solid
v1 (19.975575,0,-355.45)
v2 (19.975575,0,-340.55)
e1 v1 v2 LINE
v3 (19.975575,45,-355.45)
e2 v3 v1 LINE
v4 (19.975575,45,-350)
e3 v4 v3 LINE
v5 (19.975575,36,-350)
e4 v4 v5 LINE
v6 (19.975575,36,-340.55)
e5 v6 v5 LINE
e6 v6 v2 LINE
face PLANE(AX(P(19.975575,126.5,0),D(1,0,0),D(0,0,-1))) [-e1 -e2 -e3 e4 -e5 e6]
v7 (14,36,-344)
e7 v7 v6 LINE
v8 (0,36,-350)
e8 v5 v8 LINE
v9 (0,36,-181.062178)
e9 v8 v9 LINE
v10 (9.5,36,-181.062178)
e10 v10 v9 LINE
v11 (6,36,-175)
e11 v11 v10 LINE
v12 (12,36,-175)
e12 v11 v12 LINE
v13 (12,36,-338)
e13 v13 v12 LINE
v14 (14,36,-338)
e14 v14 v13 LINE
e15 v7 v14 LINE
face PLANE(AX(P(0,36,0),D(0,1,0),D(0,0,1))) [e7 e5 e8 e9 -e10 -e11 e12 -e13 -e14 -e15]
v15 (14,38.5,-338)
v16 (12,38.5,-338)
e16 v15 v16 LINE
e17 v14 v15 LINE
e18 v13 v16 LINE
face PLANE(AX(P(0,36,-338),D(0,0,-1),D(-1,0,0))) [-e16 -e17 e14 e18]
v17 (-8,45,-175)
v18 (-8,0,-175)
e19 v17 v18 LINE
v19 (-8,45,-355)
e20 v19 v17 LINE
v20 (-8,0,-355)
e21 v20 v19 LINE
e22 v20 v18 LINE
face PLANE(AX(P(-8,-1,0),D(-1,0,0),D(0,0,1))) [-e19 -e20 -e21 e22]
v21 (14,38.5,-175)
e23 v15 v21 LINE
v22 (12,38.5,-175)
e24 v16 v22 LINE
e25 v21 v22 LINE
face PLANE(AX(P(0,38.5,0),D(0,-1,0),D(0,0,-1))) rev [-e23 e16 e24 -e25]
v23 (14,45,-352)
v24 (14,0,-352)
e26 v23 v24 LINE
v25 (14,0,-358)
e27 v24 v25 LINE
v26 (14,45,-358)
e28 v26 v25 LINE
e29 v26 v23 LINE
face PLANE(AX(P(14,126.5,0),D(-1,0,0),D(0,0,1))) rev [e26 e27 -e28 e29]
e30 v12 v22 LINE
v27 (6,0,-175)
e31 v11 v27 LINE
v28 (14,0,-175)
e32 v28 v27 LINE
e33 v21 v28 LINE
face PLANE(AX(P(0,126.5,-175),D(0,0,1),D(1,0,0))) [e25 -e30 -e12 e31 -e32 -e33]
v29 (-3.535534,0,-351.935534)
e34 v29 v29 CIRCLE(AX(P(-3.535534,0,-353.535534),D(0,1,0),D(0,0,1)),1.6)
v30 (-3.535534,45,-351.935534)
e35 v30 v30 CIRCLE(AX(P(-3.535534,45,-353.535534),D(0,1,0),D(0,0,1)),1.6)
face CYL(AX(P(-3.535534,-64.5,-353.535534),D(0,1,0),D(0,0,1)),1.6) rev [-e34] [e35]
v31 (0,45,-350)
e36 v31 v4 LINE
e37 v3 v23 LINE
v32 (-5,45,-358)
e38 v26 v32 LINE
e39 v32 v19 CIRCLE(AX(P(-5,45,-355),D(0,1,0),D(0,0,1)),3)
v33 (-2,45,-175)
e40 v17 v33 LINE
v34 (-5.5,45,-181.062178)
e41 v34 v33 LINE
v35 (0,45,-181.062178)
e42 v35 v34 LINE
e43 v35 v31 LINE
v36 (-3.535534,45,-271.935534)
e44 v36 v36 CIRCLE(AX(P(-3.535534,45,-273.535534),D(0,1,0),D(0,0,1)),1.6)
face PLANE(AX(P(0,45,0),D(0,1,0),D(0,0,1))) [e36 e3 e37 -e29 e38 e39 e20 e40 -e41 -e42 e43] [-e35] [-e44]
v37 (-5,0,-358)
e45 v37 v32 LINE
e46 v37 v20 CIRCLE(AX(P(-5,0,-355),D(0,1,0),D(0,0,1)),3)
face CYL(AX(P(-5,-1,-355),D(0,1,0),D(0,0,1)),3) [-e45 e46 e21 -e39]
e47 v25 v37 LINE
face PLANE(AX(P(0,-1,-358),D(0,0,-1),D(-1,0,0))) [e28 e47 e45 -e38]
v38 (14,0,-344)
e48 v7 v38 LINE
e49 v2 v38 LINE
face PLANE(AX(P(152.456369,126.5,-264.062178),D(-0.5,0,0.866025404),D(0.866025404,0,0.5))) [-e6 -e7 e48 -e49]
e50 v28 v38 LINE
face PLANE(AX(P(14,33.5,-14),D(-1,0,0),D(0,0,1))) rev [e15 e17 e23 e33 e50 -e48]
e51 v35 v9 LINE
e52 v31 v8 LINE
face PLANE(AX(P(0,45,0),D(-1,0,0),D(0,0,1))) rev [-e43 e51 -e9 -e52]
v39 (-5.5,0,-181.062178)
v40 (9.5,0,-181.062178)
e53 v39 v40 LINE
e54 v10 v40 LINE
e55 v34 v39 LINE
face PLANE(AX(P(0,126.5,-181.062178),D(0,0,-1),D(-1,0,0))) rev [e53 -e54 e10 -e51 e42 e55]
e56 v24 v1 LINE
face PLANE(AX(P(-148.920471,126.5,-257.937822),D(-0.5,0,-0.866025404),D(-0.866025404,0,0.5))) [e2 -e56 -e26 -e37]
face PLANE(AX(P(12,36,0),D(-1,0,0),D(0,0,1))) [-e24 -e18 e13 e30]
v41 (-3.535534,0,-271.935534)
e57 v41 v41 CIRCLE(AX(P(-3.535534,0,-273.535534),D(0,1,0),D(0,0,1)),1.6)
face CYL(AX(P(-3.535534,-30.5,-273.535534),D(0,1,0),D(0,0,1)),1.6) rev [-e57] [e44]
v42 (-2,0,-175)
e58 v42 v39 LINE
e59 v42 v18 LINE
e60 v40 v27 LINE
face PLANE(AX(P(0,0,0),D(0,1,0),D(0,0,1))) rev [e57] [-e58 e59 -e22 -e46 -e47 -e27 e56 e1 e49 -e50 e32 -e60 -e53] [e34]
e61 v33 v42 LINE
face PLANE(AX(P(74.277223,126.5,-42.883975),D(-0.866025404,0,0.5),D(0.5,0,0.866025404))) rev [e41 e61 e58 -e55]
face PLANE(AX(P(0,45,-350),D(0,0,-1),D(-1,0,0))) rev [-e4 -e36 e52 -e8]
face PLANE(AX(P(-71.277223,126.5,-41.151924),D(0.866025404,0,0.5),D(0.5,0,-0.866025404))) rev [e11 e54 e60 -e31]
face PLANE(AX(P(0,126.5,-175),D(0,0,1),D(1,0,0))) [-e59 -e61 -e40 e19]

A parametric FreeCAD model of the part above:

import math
import FreeCAD as App
import Part
import Sketcher
from FreeCAD import Vector
Q = App.Units.Quantity


def edges_at(feature, points):
    """Names of the edges that pass closest to the given points."""
    edges = feature.Shape.Edges
    near = lambda p: min(range(len(edges)), key=lambda i: edges[i].distToShape(Part.Vertex(*p))[0])
    return sorted({f"Edge{near(p) + 1}" for p in points})


def add_polygon(sketch, points):
    """Adds a closed chain of lines whose ends are joined by coincident constraints."""
    first, n = sketch.GeometryCount, len(points)
    for a, b in zip(points, points[1:] + points[:1]):
        sketch.addGeometry(Part.LineSegment(App.Vector(*a, 0), App.Vector(*b, 0)), False)
    for i in range(n):
        sketch.addConstraint(Sketcher.Constraint("Coincident", first + i, 2, first + (i + 1) % n, 1))

doc = App.newDocument("Part")
params = doc.addObject("Spreadsheet::Sheet", "Params")
for row, (alias, value) in enumerate([
    ("sketch1_width", "270 mm"),
    ("sketch1_width2", "250 mm"),
    ("sketch1_height", "370 mm"),
    ("sketch1_height2", "350 mm"),
    ("pad1_length", "45 mm"),
    ("sketch2_width", "250 mm"),
    ("sketch2_width2", "222 mm"),
    ("sketch2_height", "350 mm"),
    ("sketch2_height2", "322 mm"),
    ("pad2_length", "5 mm"),
    ("sketch3_width", "246 mm"),
    ("sketch3_width2", "226 mm"),
    ("sketch3_height", "346 mm"),
    ("sketch3_height2", "326 mm"),
    ("pocket1_length", "2.5 mm"),
    ("sketch4_diameter", "3.2 mm"),
    ("pocket2_length", "109.5 mm"),
    ("fillet_radius", "5 mm"),
    ("sketch5_width", "250 mm"),
    ("sketch5_width2", "222 mm"),
    ("sketch5_height", "350 mm"),
    ("sketch5_height2", "322 mm"),
    ("pad3_length", "33.5 mm"),
    ("sketch6_radius", "5 mm"),
    ("sketch6_width", "222 mm"),
    ("sketch6_width2", "241 mm"),
    ("sketch6_width3", "260 mm"),
    ("sketch6_width4", "8 mm"),
    ("pocket3_length", "126.5 mm"),
    ("sketch7_radius", "5 mm"),
    ("sketch7_radius2", "3 mm"),
    ("sketch7_width", "19 mm"),
    ("sketch7_height", "180 mm"),
    ("pocket4_length", "46 mm"),
    ("sketch8_width", "2 mm"),
    ("pocket5_length", "2.5 mm"),
    ("sketch9_diameter", "3.2 mm"),
    ("pocket6_length", "75.5 mm"),
], start=1):
    params.set(f"A{row}", alias)
    params.set(f"B{row}", "=" + value)
    params.setAlias(f"B{row}", alias)

body = doc.addObject("PartDesign::Body", "Body")

# Sketch on XZ plane
sketch1 = doc.addObject("Sketcher::SketchObject", "Sketch")
body.addObject(sketch1)
sketch1.AttachmentSupport = (doc.XZ_Plane, [""])
sketch1.MapMode = "FlatFace"
add_polygon(sketch1, [(-10, -360), (-10, 10), (260, 10), (260, -360)])  # lines 0-3
add_polygon(sketch1, [(250, 0), (0, 0), (0, -350), (250, -350)])  # lines 4-7
sketch1.addConstraint([
    Sketcher.Constraint("Vertical", 0),
    Sketcher.Constraint("Horizontal", 1),
    Sketcher.Constraint("Vertical", 2),
    Sketcher.Constraint("Horizontal", 3),
    Sketcher.Constraint("Horizontal", 4),
    Sketcher.Constraint("Vertical", 5),
    Sketcher.Constraint("Horizontal", 6),
    Sketcher.Constraint("Vertical", 7),
    Sketcher.Constraint("Coincident", 4, 2, -1, 1),
    Sketcher.Constraint("DistanceX", 1, 1, 1, 2, Q("270 mm")),
    Sketcher.Constraint("DistanceX", 4, 2, 4, 1, Q("250 mm")),
    Sketcher.Constraint("DistanceY", 0, 1, 0, 2, Q("370 mm")),
    Sketcher.Constraint("DistanceY", 5, 2, 5, 1, Q("350 mm")),
    Sketcher.Constraint("DistanceX", 0, 2, -1, 1, Q("10 mm")),
    Sketcher.Constraint("DistanceY", -1, 1, 0, 2, Q("10 mm")),
])
sketch1.setExpression("Constraints[17]", "Params.sketch1_width")
sketch1.setExpression("Constraints[18]", "Params.sketch1_width2")
sketch1.setExpression("Constraints[19]", "Params.sketch1_height")
sketch1.setExpression("Constraints[20]", "Params.sketch1_height2")
pad1 = doc.addObject("PartDesign::Pad", "Pad")
body.addObject(pad1)
pad1.Profile = sketch1
pad1.setExpression("Length", "Params.pad1_length")
pad1.Reversed = True

# Sketch on XZ plane
sketch2 = doc.addObject("Sketcher::SketchObject", "Sketch001")
body.addObject(sketch2)
sketch2.AttachmentSupport = (doc.XZ_Plane, [""])
sketch2.MapMode = "FlatFace"
sketch2.AttachmentOffset = App.Placement(Vector(0, 0, -38.5), App.Rotation())
add_polygon(sketch2, [(0, -350), (0, 0), (250, 0), (250, -350)])  # lines 0-3
add_polygon(sketch2, [(236, -14), (14, -14), (14, -336), (236, -336)])  # lines 4-7
sketch2.addConstraint([
    Sketcher.Constraint("Vertical", 0),
    Sketcher.Constraint("Horizontal", 1),
    Sketcher.Constraint("Vertical", 2),
    Sketcher.Constraint("Horizontal", 3),
    Sketcher.Constraint("Horizontal", 4),
    Sketcher.Constraint("Vertical", 5),
    Sketcher.Constraint("Horizontal", 6),
    Sketcher.Constraint("Vertical", 7),
    Sketcher.Constraint("Coincident", 0, 2, -1, 1),
    Sketcher.Constraint("DistanceX", 1, 1, 1, 2, Q("250 mm")),
    Sketcher.Constraint("DistanceX", 4, 2, 4, 1, Q("222 mm")),
    Sketcher.Constraint("DistanceY", 0, 1, 0, 2, Q("350 mm")),
    Sketcher.Constraint("DistanceY", 5, 2, 5, 1, Q("322 mm")),
    Sketcher.Constraint("DistanceX", -1, 1, 4, 2, Q("14 mm")),
    Sketcher.Constraint("DistanceY", 4, 2, -1, 1, Q("14 mm")),
])
sketch2.setExpression("Constraints[17]", "Params.sketch2_width")
sketch2.setExpression("Constraints[18]", "Params.sketch2_width2")
sketch2.setExpression("Constraints[19]", "Params.sketch2_height")
sketch2.setExpression("Constraints[20]", "Params.sketch2_height2")
pad2 = doc.addObject("PartDesign::Pad", "Pad001")
body.addObject(pad2)
pad2.Profile = sketch2
pad2.setExpression("Length", "Params.pad2_length")

# Sketch on XZ plane
sketch3 = doc.addObject("Sketcher::SketchObject", "Sketch002")
body.addObject(sketch3)
sketch3.AttachmentSupport = (doc.XZ_Plane, [""])
sketch3.MapMode = "FlatFace"
sketch3.AttachmentOffset = App.Placement(Vector(0, 0, -38.5), App.Rotation())
add_polygon(sketch3, [(2, -348), (2, -2), (248, -2), (248, -348)])  # lines 0-3
add_polygon(sketch3, [(238, -12), (12, -12), (12, -338), (238, -338)])  # lines 4-7
sketch3.addConstraint([
    Sketcher.Constraint("Vertical", 0),
    Sketcher.Constraint("Horizontal", 1),
    Sketcher.Constraint("Vertical", 2),
    Sketcher.Constraint("Horizontal", 3),
    Sketcher.Constraint("Horizontal", 4),
    Sketcher.Constraint("Vertical", 5),
    Sketcher.Constraint("Horizontal", 6),
    Sketcher.Constraint("Vertical", 7),
    Sketcher.Constraint("DistanceX", 1, 1, 1, 2, Q("246 mm")),
    Sketcher.Constraint("DistanceX", 4, 2, 4, 1, Q("226 mm")),
    Sketcher.Constraint("DistanceY", 0, 1, 0, 2, Q("346 mm")),
    Sketcher.Constraint("DistanceY", 5, 2, 5, 1, Q("326 mm")),
    Sketcher.Constraint("DistanceX", -1, 1, 0, 2, Q("2 mm")),
    Sketcher.Constraint("DistanceY", 0, 2, -1, 1, Q("2 mm")),
    Sketcher.Constraint("DistanceX", -1, 1, 4, 2, Q("12 mm")),
    Sketcher.Constraint("DistanceY", 4, 2, -1, 1, Q("12 mm")),
])
sketch3.setExpression("Constraints[16]", "Params.sketch3_width")
sketch3.setExpression("Constraints[17]", "Params.sketch3_width2")
sketch3.setExpression("Constraints[18]", "Params.sketch3_height")
sketch3.setExpression("Constraints[19]", "Params.sketch3_height2")
pocket1 = doc.addObject("PartDesign::Pocket", "Pocket")
body.addObject(pocket1)
pocket1.Profile = sketch3
pocket1.setExpression("Length", "Params.pocket1_length")
pocket1.Reversed = True

# Sketch on XZ plane
sketch4 = doc.addObject("Sketcher::SketchObject", "Sketch003")
body.addObject(sketch4)
sketch4.AttachmentSupport = (doc.XZ_Plane, [""])
sketch4.MapMode = "FlatFace"
sketch4.AttachmentOffset = App.Placement(Vector(0, 0, -45), App.Rotation())
sketch4.addGeometry([
    Part.Circle(Vector(-3.535534, 3.535534, 0), Vector(0, 0, 1), 1.6),  # 0
    Part.ArcOfCircle(Part.Circle(Vector(-3.535534, -353.535534, 0), Vector(0, 0, 1), 1.6), math.radians(45), math.radians(225)),  # 1
    Part.ArcOfCircle(Part.Circle(Vector(-3.535534, -353.535534, 0), Vector(0, 0, 1), 1.6), math.radians(0), math.radians(45)),  # 2
    Part.ArcOfCircle(Part.Circle(Vector(-3.535534, -353.535534, 0), Vector(0, 0, 1), 1.6), math.radians(-135), math.radians(0)),  # 3
    Part.Circle(Vector(253.535534, -353.535534, 0), Vector(0, 0, 1), 1.6),  # 4
    Part.Circle(Vector(253.535534, 3.535534, 0), Vector(0, 0, 1), 1.6),  # 5
], False)
sketch4.addConstraint([
    Sketcher.Constraint("Tangent", 1, 1, 2, 2),
    Sketcher.Constraint("Tangent", 2, 1, 3, 2),
    Sketcher.Constraint("Tangent", 3, 1, 1, 2),
    Sketcher.Constraint("Equal", 0, 1),
    Sketcher.Constraint("Equal", 3, 4),
    Sketcher.Constraint("Equal", 4, 5),
    Sketcher.Constraint("Horizontal", 3, 3, 4, 3),
    Sketcher.Constraint("Horizontal", 0, 3, 5, 3),
    Sketcher.Constraint("Horizontal", 4, 3, 2, 1),
    Sketcher.Constraint("Vertical", 0, 3, 1, 3),
    Sketcher.Constraint("Vertical", 4, 3, 5, 3),
    Sketcher.Constraint("Diameter", 0, Q("3.2 mm")),
    Sketcher.Constraint("DistanceX", 1, 3, 1, 1, Q("1.131371 mm")),
    Sketcher.Constraint("DistanceX", 3, 1, 1, 3, Q("1.131371 mm")),
    Sketcher.Constraint("DistanceX", 0, 3, -1, 1, Q("3.535534 mm")),
    Sketcher.Constraint("DistanceY", -1, 1, 0, 3, Q("3.535534 mm")),
    Sketcher.Constraint("DistanceY", 1, 3, -1, 1, Q("353.535534 mm")),
    Sketcher.Constraint("DistanceX", -1, 1, 4, 3, Q("253.535534 mm")),
])
sketch4.setExpression("Constraints[11]", "Params.sketch4_diameter")
pocket2 = doc.addObject("PartDesign::Pocket", "Pocket001")
body.addObject(pocket2)
pocket2.Profile = sketch4
pocket2.setExpression("Length", "Params.pocket2_length")
pocket2.Reversed = True
doc.recompute()

fillet = doc.addObject("PartDesign::Fillet", "Fillet")
body.addObject(fillet)
fillet.Base = (pocket2, edges_at(pocket2, [
    (-10, 22.5, 10),
    (-10, 22.5, -360),
    (260, 22.5, -360),
    (260, 22.5, 10),
]))
fillet.setExpression("Radius", "Params.fillet_radius")

# Sketch on XZ plane
sketch5 = doc.addObject("Sketcher::SketchObject", "Sketch004")
body.addObject(sketch5)
sketch5.AttachmentSupport = (doc.XZ_Plane, [""])
sketch5.MapMode = "FlatFace"
sketch5.AttachmentOffset = App.Placement(Vector(0, 0, -33.5), App.Rotation())
add_polygon(sketch5, [(0, 0), (0, -350), (250, -350), (250, 0)])  # lines 0-3
add_polygon(sketch5, [(236, -336), (14, -336), (14, -14), (236, -14)])  # lines 4-7
sketch5.addConstraint([
    Sketcher.Constraint("Vertical", 0),
    Sketcher.Constraint("Horizontal", 1),
    Sketcher.Constraint("Vertical", 2),
    Sketcher.Constraint("Horizontal", 3),
    Sketcher.Constraint("Horizontal", 4),
    Sketcher.Constraint("Vertical", 5),
    Sketcher.Constraint("Horizontal", 6),
    Sketcher.Constraint("Vertical", 7),
    Sketcher.Constraint("Coincident", 3, 2, -1, 1),
    Sketcher.Constraint("DistanceX", 1, 1, 1, 2, Q("250 mm")),
    Sketcher.Constraint("DistanceX", 4, 2, 4, 1, Q("222 mm")),
    Sketcher.Constraint("DistanceY", 0, 2, 0, 1, Q("350 mm")),
    Sketcher.Constraint("DistanceY", 5, 1, 5, 2, Q("322 mm")),
    Sketcher.Constraint("DistanceX", -1, 1, 4, 2, Q("14 mm")),
    Sketcher.Constraint("DistanceY", 4, 2, -1, 1, Q("336 mm")),
])
sketch5.setExpression("Constraints[17]", "Params.sketch5_width")
sketch5.setExpression("Constraints[18]", "Params.sketch5_width2")
sketch5.setExpression("Constraints[19]", "Params.sketch5_height")
sketch5.setExpression("Constraints[20]", "Params.sketch5_height2")
pad3 = doc.addObject("PartDesign::Pad", "Pad002")
body.addObject(pad3)
pad3.Profile = sketch5
pad3.setExpression("Length", "Params.pad3_length")

# Sketch on XZ plane
sketch6 = doc.addObject("Sketcher::SketchObject", "Sketch005")
body.addObject(sketch6)
sketch6.AttachmentSupport = (doc.XZ_Plane, [""])
sketch6.MapMode = "FlatFace"
sketch6.AttachmentOffset = App.Placement(Vector(0, 0, -126.5), App.Rotation())
sketch6.addGeometry([
    Part.LineSegment(Vector(14, -175, 0), Vector(14, -14, 0)),  # 0
    Part.LineSegment(Vector(14, -14, 0), Vector(236, -14, 0)),  # 1
    Part.LineSegment(Vector(236, -14, 0), Vector(236, -336, 0)),  # 2
    Part.LineSegment(Vector(236, -336, 0), Vector(14, -336, 0)),  # 3
    Part.LineSegment(Vector(14, -336, 0), Vector(14, -344, 0)),  # 4
    Part.LineSegment(Vector(14, -344, 0), Vector(19.975575, -340.55, 0)),  # 5
    Part.LineSegment(Vector(19.975575, -340.55, 0), Vector(19.975575, -355.45, 0)),  # 6
    Part.LineSegment(Vector(19.975575, -355.45, 0), Vector(14, -352, 0)),  # 7
    Part.LineSegment(Vector(14, -352, 0), Vector(14, -360, 0)),  # 8
    Part.LineSegment(Vector(14, -360, 0), Vector(255, -360, 0)),  # 9
    Part.ArcOfCircle(Part.Circle(Vector(255, -355, 0), Vector(0, 0, 1), 5), math.radians(-90), math.radians(0)),  # 10
    Part.LineSegment(Vector(260, -355, 0), Vector(260, 5, 0)),  # 11
    Part.ArcOfCircle(Part.Circle(Vector(255, 5, 0), Vector(0, 0, 1), 5), math.radians(0), math.radians(90)),  # 12
    Part.LineSegment(Vector(255, 10, 0), Vector(-5, 10, 0)),  # 13
    Part.ArcOfCircle(Part.Circle(Vector(-5, 5, 0), Vector(0, 0, 1), 5), math.radians(90), math.radians(180)),  # 14
    Part.LineSegment(Vector(-10, 5, 0), Vector(-10, -175, 0)),  # 15
    Part.LineSegment(Vector(-10, -175, 0), Vector(-2, -175, 0)),  # 16
    Part.LineSegment(Vector(-2, -175, 0), Vector(-5.5, -181.062178, 0)),  # 17
    Part.LineSegment(Vector(-5.5, -181.062178, 0), Vector(9.5, -181.062178, 0)),  # 18
    Part.LineSegment(Vector(9.5, -181.062178, 0), Vector(6, -175, 0)),  # 19
    Part.LineSegment(Vector(6, -175, 0), Vector(14, -175, 0)),  # 20
], False)
sketch6.addConstraint([
    Sketcher.Constraint("Coincident", 0, 2, 1, 1),
    Sketcher.Constraint("Coincident", 1, 2, 2, 1),
    Sketcher.Constraint("Coincident", 2, 2, 3, 1),
    Sketcher.Constraint("Coincident", 3, 2, 4, 1),
    Sketcher.Constraint("Coincident", 4, 2, 5, 1),
    Sketcher.Constraint("Coincident", 5, 2, 6, 1),
    Sketcher.Constraint("Coincident", 6, 2, 7, 1),
    Sketcher.Constraint("Coincident", 7, 2, 8, 1),
    Sketcher.Constraint("Coincident", 8, 2, 9, 1),
    Sketcher.Constraint("Tangent", 9, 2, 10, 1),
    Sketcher.Constraint("Tangent", 10, 2, 11, 1),
    Sketcher.Constraint("Tangent", 11, 2, 12, 1),
    Sketcher.Constraint("Tangent", 12, 2, 13, 1),
    Sketcher.Constraint("Tangent", 13, 2, 14, 1),
    Sketcher.Constraint("Tangent", 14, 2, 15, 1),
    Sketcher.Constraint("Coincident", 15, 2, 16, 1),
    Sketcher.Constraint("Coincident", 16, 2, 17, 1),
    Sketcher.Constraint("Coincident", 17, 2, 18, 1),
    Sketcher.Constraint("Coincident", 18, 2, 19, 1),
    Sketcher.Constraint("Coincident", 19, 2, 20, 1),
    Sketcher.Constraint("Coincident", 20, 2, 0, 1),
    Sketcher.Constraint("Vertical", 0),
    Sketcher.Constraint("Horizontal", 1),
    Sketcher.Constraint("Vertical", 2),
    Sketcher.Constraint("Horizontal", 3),
    Sketcher.Constraint("Vertical", 4),
    Sketcher.Constraint("Vertical", 6),
    Sketcher.Constraint("Vertical", 8),
    Sketcher.Constraint("Horizontal", 9),
    Sketcher.Constraint("Vertical", 11),
    Sketcher.Constraint("Horizontal", 13),
    Sketcher.Constraint("Vertical", 15),
    Sketcher.Constraint("Horizontal", 16),
    Sketcher.Constraint("Horizontal", 18),
    Sketcher.Constraint("Horizontal", 20),
    Sketcher.Constraint("Equal", 10, 12),
    Sketcher.Constraint("Equal", 12, 14),
    Sketcher.Constraint("Perpendicular", 7, 17),
    Sketcher.Constraint("Perpendicular", 5, 19),
    Sketcher.Constraint("Horizontal", 16, 2, 19, 2),
    Sketcher.Constraint("Vertical", 0, 2, 3, 2),
    Sketcher.Constraint("Vertical", 4, 2, 7, 2),
    Sketcher.Constraint("Equal", 16, 20),
    Sketcher.Constraint("Equal", 20, 4),
    Sketcher.Constraint("Equal", 4, 8),
    Sketcher.Constraint("Equal", 5, 7),
    Sketcher.Constraint("Radius", 10, Q("5 mm")),
    Sketcher.Constraint("DistanceX", 1, 1, 1, 2, Q("222 mm")),
    Sketcher.Constraint("DistanceX", 9, 1, 9, 2, Q("241 mm")),
    Sketcher.Constraint("DistanceX", 13, 2, 13, 1, Q("260 mm")),
    Sketcher.Constraint("DistanceX", 16, 1, 16, 2, Q("8 mm")),
    Sketcher.Constraint("DistanceX", 18, 1, 18, 2, Q("15 mm")),
    Sketcher.Constraint("DistanceY", 0, 1, 0, 2, Q("161 mm")),
    Sketcher.Constraint("DistanceY", 2, 2, 2, 1, Q("322 mm")),
    Sketcher.Constraint("DistanceY", 11, 1, 11, 2, Q("360 mm")),
    Sketcher.Constraint("DistanceY", 15, 2, 15, 1, Q("180 mm")),
    Sketcher.Constraint("Angle", 5, Q("30 deg")),
    Sketcher.Constraint("DistanceY", 6, 2, 6, 1, Q("14.9 mm")),
    Sketcher.Constraint("DistanceX", -1, 1, 10, 3, Q("255 mm")),
    Sketcher.Constraint("DistanceY", 10, 3, -1, 1, Q("355 mm")),
])
sketch6.setExpression("Constraints[46]", "Params.sketch6_radius")
sketch6.setExpression("Constraints[47]", "Params.sketch6_width")
sketch6.setExpression("Constraints[48]", "Params.sketch6_width2")
sketch6.setExpression("Constraints[49]", "Params.sketch6_width3")
sketch6.setExpression("Constraints[50]", "Params.sketch6_width4")
pocket3 = doc.addObject("PartDesign::Pocket", "Pocket002")
body.addObject(pocket3)
pocket3.Profile = sketch6
pocket3.setExpression("Length", "Params.pocket3_length")
pocket3.Reversed = True

# Sketch on XZ plane
sketch7 = doc.addObject("Sketcher::SketchObject", "Sketch006")
body.addObject(sketch7)
sketch7.AttachmentSupport = (doc.XZ_Plane, [""])
sketch7.MapMode = "FlatFace"
sketch7.AttachmentOffset = App.Placement(Vector(0, 0, -45), App.Rotation())
sketch7.addGeometry([
    Part.LineSegment(Vector(-5, -358, 0), Vector(14, -358, 0)),  # 0
    Part.LineSegment(Vector(14, -358, 0), Vector(14, -360, 0)),  # 1
    Part.LineSegment(Vector(14, -360, 0), Vector(-5, -360, 0)),  # 2
    Part.ArcOfCircle(Part.Circle(Vector(-5, -355, 0), Vector(0, 0, 1), 5), math.radians(180), math.radians(270)),  # 3
    Part.LineSegment(Vector(-10, -355, 0), Vector(-10, -175, 0)),  # 4
    Part.LineSegment(Vector(-10, -175, 0), Vector(-8, -175, 0)),  # 5
    Part.LineSegment(Vector(-8, -175, 0), Vector(-8, -355, 0)),  # 6
    Part.ArcOfCircle(Part.Circle(Vector(-5, -355, 0), Vector(0, 0, 1), 3), math.radians(180), math.radians(270)),  # 7
], False)
sketch7.addConstraint([
    Sketcher.Constraint("Coincident", 0, 2, 1, 1),
    Sketcher.Constraint("Coincident", 1, 2, 2, 1),
    Sketcher.Constraint("Tangent", 2, 2, 3, 2),
    Sketcher.Constraint("Tangent", 3, 1, 4, 1),
    Sketcher.Constraint("Coincident", 4, 2, 5, 1),
    Sketcher.Constraint("Coincident", 5, 2, 6, 1),
    Sketcher.Constraint("Tangent", 6, 2, 7, 1),
    Sketcher.Constraint("Tangent", 7, 2, 0, 1),
    Sketcher.Constraint("Horizontal", 0),
    Sketcher.Constraint("Vertical", 1),
    Sketcher.Constraint("Horizontal", 2),
    Sketcher.Constraint("Vertical", 4),
    Sketcher.Constraint("Horizontal", 5),
    Sketcher.Constraint("Vertical", 6),
    Sketcher.Constraint("Coincident", 7, 3, 3, 3),
    Sketcher.Constraint("Radius", 3, Q("5 mm")),
    Sketcher.Constraint("Radius", 7, Q("3 mm")),
    Sketcher.Constraint("DistanceX", 0, 1, 0, 2, Q("19 mm")),
    Sketcher.Constraint("DistanceY", 4, 1, 4, 2, Q("180 mm")),
    Sketcher.Constraint("DistanceX", 3, 3, -1, 1, Q("5 mm")),
    Sketcher.Constraint("DistanceY", 3, 3, -1, 1, Q("355 mm")),
])
sketch7.setExpression("Constraints[15]", "Params.sketch7_radius")
sketch7.setExpression("Constraints[16]", "Params.sketch7_radius2")
sketch7.setExpression("Constraints[17]", "Params.sketch7_width")
sketch7.setExpression("Constraints[18]", "Params.sketch7_height")
pocket4 = doc.addObject("PartDesign::Pocket", "Pocket003")
body.addObject(pocket4)
pocket4.Profile = sketch7
pocket4.setExpression("Length", "Params.pocket4_length")
pocket4.Reversed = True

# Sketch on XZ plane
sketch8 = doc.addObject("Sketcher::SketchObject", "Sketch007")
body.addObject(sketch8)
sketch8.AttachmentSupport = (doc.XZ_Plane, [""])
sketch8.MapMode = "FlatFace"
sketch8.AttachmentOffset = App.Placement(Vector(0, 0, -38.5), App.Rotation())
add_polygon(sketch8, [(19.975575, -348), (19.975575, -350), (0, -350), (0, -181.062178), (2, -181.062178), (2, -348)])  # lines 0-5
sketch8.addConstraint([
    Sketcher.Constraint("Vertical", 0),
    Sketcher.Constraint("Horizontal", 1),
    Sketcher.Constraint("Vertical", 2),
    Sketcher.Constraint("Horizontal", 3),
    Sketcher.Constraint("Vertical", 4),
    Sketcher.Constraint("Horizontal", 5),
    Sketcher.Constraint("PointOnObject", 1, 2, -2),
    Sketcher.Constraint("Equal", 3, 0),
    Sketcher.Constraint("DistanceX", 3, 1, 3, 2, Q("2 mm")),
    Sketcher.Constraint("DistanceY", 0, 2, -1, 1, Q("350 mm")),
    Sketcher.Constraint("DistanceX", 1, 2, 1, 1, Q("19.975575 mm")),
    Sketcher.Constraint("DistanceY", 2, 1, 2, 2, Q("168.937822 mm")),
])
sketch8.setExpression("Constraints[14]", "Params.sketch8_width")
pocket5 = doc.addObject("PartDesign::Pocket", "Pocket004")
body.addObject(pocket5)
pocket5.Profile = sketch8
pocket5.setExpression("Length", "Params.pocket5_length")
pocket5.Reversed = True

# Sketch on XZ plane
sketch9 = doc.addObject("Sketcher::SketchObject", "Sketch008")
body.addObject(sketch9)
sketch9.AttachmentSupport = (doc.XZ_Plane, [""])
sketch9.MapMode = "FlatFace"
sketch9.AttachmentOffset = App.Placement(Vector(0, 0, -45), App.Rotation())
sketch9.addGeometry(Part.Circle(Vector(-3.535534, -273.535534, 0), Vector(0, 0, 1), 1.6), False)
sketch9.addConstraint([
    Sketcher.Constraint("Diameter", 0, Q("3.2 mm")),
    Sketcher.Constraint("DistanceX", 0, 3, -1, 1, Q("3.535534 mm")),
    Sketcher.Constraint("DistanceY", 0, 3, -1, 1, Q("273.535534 mm")),
])
sketch9.setExpression("Constraints[0]", "Params.sketch9_diameter")
pocket6 = doc.addObject("PartDesign::Pocket", "Pocket005")
body.addObject(pocket6)
pocket6.Profile = sketch9
pocket6.setExpression("Length", "Params.pocket6_length")
pocket6.Reversed = True

doc.recompute()
